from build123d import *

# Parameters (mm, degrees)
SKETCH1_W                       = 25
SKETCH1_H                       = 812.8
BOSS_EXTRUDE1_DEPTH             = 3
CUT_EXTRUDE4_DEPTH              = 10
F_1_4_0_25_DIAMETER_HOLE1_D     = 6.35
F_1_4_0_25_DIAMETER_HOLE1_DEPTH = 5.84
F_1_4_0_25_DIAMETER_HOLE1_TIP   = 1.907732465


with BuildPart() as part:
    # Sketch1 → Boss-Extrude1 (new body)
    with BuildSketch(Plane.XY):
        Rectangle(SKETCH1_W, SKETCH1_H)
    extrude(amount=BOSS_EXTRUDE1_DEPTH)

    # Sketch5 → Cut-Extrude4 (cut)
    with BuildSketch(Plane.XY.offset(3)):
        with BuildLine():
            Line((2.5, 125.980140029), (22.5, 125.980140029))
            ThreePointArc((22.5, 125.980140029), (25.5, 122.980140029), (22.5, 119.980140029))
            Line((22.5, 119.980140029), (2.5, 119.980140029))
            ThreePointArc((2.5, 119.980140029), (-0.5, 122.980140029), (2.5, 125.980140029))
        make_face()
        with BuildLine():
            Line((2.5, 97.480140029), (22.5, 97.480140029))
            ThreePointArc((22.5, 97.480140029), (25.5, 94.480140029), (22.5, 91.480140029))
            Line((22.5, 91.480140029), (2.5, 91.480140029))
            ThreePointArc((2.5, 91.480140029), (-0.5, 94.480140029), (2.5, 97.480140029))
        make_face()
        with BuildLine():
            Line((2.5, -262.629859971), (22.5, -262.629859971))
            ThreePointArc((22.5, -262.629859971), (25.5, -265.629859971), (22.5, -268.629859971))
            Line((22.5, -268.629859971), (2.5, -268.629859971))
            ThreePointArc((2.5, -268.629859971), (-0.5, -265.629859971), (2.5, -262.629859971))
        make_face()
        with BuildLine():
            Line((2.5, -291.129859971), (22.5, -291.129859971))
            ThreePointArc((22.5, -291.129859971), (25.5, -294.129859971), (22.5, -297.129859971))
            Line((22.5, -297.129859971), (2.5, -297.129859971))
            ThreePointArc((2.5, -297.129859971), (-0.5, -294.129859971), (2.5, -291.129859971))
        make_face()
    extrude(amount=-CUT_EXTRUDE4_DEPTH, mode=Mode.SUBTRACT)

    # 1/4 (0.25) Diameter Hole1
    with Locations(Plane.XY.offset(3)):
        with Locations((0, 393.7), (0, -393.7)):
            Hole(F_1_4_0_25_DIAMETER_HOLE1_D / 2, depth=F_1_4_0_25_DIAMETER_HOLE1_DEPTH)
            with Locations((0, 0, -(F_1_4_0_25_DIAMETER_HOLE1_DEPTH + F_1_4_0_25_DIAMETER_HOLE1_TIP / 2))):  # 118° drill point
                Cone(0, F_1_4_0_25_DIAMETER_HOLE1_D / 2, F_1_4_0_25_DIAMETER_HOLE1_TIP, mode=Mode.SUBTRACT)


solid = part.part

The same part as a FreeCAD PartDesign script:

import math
import FreeCAD as App
import Part
import Sketcher
from FreeCAD import Vector

doc = App.newDocument("Part")
body = doc.addObject("PartDesign::Body", "Body")

sketch1 = body.newObject("Sketcher::SketchObject", "Sketch")
sketch1.AttachmentSupport = (doc.getObject("XY_Plane"), [""])
sketch1.MapMode = "FlatFace"
sketch1.addGeometry(Part.LineSegment(Vector(-12, 406, 0), Vector(-12, -406, 0)), False)
sketch1.addGeometry(Part.LineSegment(Vector(-12, -406, 0), Vector(12, -406, 0)), False)
sketch1.addGeometry(Part.LineSegment(Vector(12, -406, 0), Vector(12, 406, 0)), False)
sketch1.addGeometry(Part.LineSegment(Vector(12, 406, 0), Vector(-12, 406, 0)), False)
sketch1.addConstraint(Sketcher.Constraint("Coincident", 0, 2, 1, 1))
sketch1.addConstraint(Sketcher.Constraint("Coincident", 1, 2, 2, 1))
sketch1.addConstraint(Sketcher.Constraint("Coincident", 2, 2, 3, 1))
sketch1.addConstraint(Sketcher.Constraint("Coincident", 3, 2, 0, 1))
sketch1.addConstraint(Sketcher.Constraint("Vertical", 0))
sketch1.addConstraint(Sketcher.Constraint("Horizontal", 1))
sketch1.addConstraint(Sketcher.Constraint("Vertical", 2))
sketch1.addConstraint(Sketcher.Constraint("Horizontal", 3))
sketch1.addConstraint(Sketcher.Constraint("Symmetric", 0, 2, 2, 2, -1, 1))
sketch1.addConstraint(Sketcher.Constraint("DistanceX", 1, 1, 1, 2, 25.0))
sketch1.addConstraint(Sketcher.Constraint("DistanceY", 0, 2, 0, 1, 812.8))
pad1 = body.newObject("PartDesign::Pad", "Pad")
pad1.Profile = sketch1
pad1.Length = 3

sketch2 = body.newObject("Sketcher::SketchObject", "Sketch001")
sketch2.AttachmentSupport = (doc.getObject("XY_Plane"), [""])
sketch2.MapMode = "FlatFace"
sketch2.AttachmentOffset = App.Placement(Vector(0, 0, 3), App.Rotation())
sketch2.addGeometry(Part.LineSegment(Vector(22.5, 126, 0), Vector(2.5, 126, 0)), False)
sketch2.addGeometry(Part.ArcOfCircle(Part.Circle(Vector(2.5, 123, 0), Vector(0, 0, 1), 3), math.radians(90), math.radians(270)), False)
sketch2.addGeometry(Part.LineSegment(Vector(2.5, 120, 0), Vector(22.5, 120, 0)), False)
sketch2.addGeometry(Part.ArcOfCircle(Part.Circle(Vector(22.5, 123, 0), Vector(0, 0, 1), 3), math.radians(-90), math.radians(90)), False)
sketch2.addGeometry(Part.LineSegment(Vector(22.5, 97.5, 0), Vector(2.5, 97.5, 0)), False)
sketch2.addGeometry(Part.ArcOfCircle(Part.Circle(Vector(2.5, 94.5, 0), Vector(0, 0, 1), 3), math.radians(90), math.radians(270)), False)
sketch2.addGeometry(Part.LineSegment(Vector(2.5, 91.5, 0), Vector(22.5, 91.5, 0)), False)
sketch2.addGeometry(Part.ArcOfCircle(Part.Circle(Vector(22.5, 94.5, 0), Vector(0, 0, 1), 3), math.radians(-90), math.radians(90)), False)
sketch2.addGeometry(Part.LineSegment(Vector(22.5, -262.6, 0), Vector(2.5, -262.6, 0)), False)
sketch2.addGeometry(Part.ArcOfCircle(Part.Circle(Vector(2.5, -265.6, 0), Vector(0, 0, 1), 3), math.radians(90), math.radians(270)), False)
sketch2.addGeometry(Part.LineSegment(Vector(2.5, -268.6, 0), Vector(22.5, -268.6, 0)), False)
sketch2.addGeometry(Part.ArcOfCircle(Part.Circle(Vector(22.5, -265.6, 0), Vector(0, 0, 1), 3), math.radians(-90), math.radians(90)), False)
sketch2.addGeometry(Part.LineSegment(Vector(22.5, -291.1, 0), Vector(2.5, -291.1, 0)), False)
sketch2.addGeometry(Part.ArcOfCircle(Part.Circle(Vector(2.5, -294.1, 0), Vector(0, 0, 1), 3), math.radians(90), math.radians(270)), False)
sketch2.addGeometry(Part.LineSegment(Vector(2.5, -297.1, 0), Vector(22.5, -297.1, 0)), False)
sketch2.addGeometry(Part.ArcOfCircle(Part.Circle(Vector(22.5, -294.1, 0), Vector(0, 0, 1), 3), math.radians(-90), math.radians(90)), False)
sketch2.addConstraint(Sketcher.Constraint("Tangent", 0, 2, 1, 1))
sketch2.addConstraint(Sketcher.Constraint("Tangent", 1, 2, 2, 1))
sketch2.addConstraint(Sketcher.Constraint("Tangent", 2, 2, 3, 1))
sketch2.addConstraint(Sketcher.Constraint("Tangent", 3, 2, 0, 1))
sketch2.addConstraint(Sketcher.Constraint("Tangent", 4, 2, 5, 1))
sketch2.addConstraint(Sketcher.Constraint("Tangent", 5, 2, 6, 1))
sketch2.addConstraint(Sketcher.Constraint("Tangent", 6, 2, 7, 1))
sketch2.addConstraint(Sketcher.Constraint("Tangent", 7, 2, 4, 1))
sketch2.addConstraint(Sketcher.Constraint("Tangent", 8, 2, 9, 1))
sketch2.addConstraint(Sketcher.Constraint("Tangent", 9, 2, 10, 1))
sketch2.addConstraint(Sketcher.Constraint("Tangent", 10, 2, 11, 1))
sketch2.addConstraint(Sketcher.Constraint("Tangent", 11, 2, 8, 1))
sketch2.addConstraint(Sketcher.Constraint("Tangent", 12, 2, 13, 1))
sketch2.addConstraint(Sketcher.Constraint("Tangent", 13, 2, 14, 1))
sketch2.addConstraint(Sketcher.Constraint("Tangent", 14, 2, 15, 1))
sketch2.addConstraint(Sketcher.Constraint("Tangent", 15, 2, 12, 1))
sketch2.addConstraint(Sketcher.Constraint("Horizontal", 0))
sketch2.addConstraint(Sketcher.Constraint("Horizontal", 2))
sketch2.addConstraint(Sketcher.Constraint("Horizontal", 4))
sketch2.addConstraint(Sketcher.Constraint("Horizontal", 6))
sketch2.addConstraint(Sketcher.Constraint("Horizontal", 8))
sketch2.addConstraint(Sketcher.Constraint("Horizontal", 10))
sketch2.addConstraint(Sketcher.Constraint("Horizontal", 12))
sketch2.addConstraint(Sketcher.Constraint("Horizontal", 14))
sketch2.addConstraint(Sketcher.Constraint("Equal", 3, 5))
sketch2.addConstraint(Sketcher.Constraint("Equal", 7, 9))
sketch2.addConstraint(Sketcher.Constraint("Equal", 11, 13))
sketch2.addConstraint(Sketcher.Constraint("Vertical", 1, 3, 5, 3))
sketch2.addConstraint(Sketcher.Constraint("Vertical", 3, 3, 7, 3))
sketch2.addConstraint(Sketcher.Constraint("Vertical", 5, 3, 9, 3))
sketch2.addConstraint(Sketcher.Constraint("Vertical", 7, 3, 11, 3))
sketch2.addConstraint(Sketcher.Constraint("Vertical", 9, 3, 13, 3))
sketch2.addConstraint(Sketcher.Constraint("Vertical", 11, 3, 15, 3))
sketch2.addConstraint(Sketcher.Constraint("Radius", 1, 3.0))
sketch2.addConstraint(Sketcher.Constraint("DistanceX", 0, 2, 0, 1, 20.0))
sketch2.addConstraint(Sketcher.Constraint("DistanceX", -1, 1, 1, 3, 2.5))
sketch2.addConstraint(Sketcher.Constraint("DistanceY", 5, 3, 1, 3, 28.5))
sketch2.addConstraint(Sketcher.Constraint("DistanceY", 13, 3, 9, 3, 28.5))
sketch2.addConstraint(Sketcher.Constraint("DistanceY", 9, 3, 5, 3, 360.11))
sketch2.addConstraint(Sketcher.Constraint("DistanceY", -1, 1, 1, 3, 122.98014))
pocket1 = body.newObject("PartDesign::Pocket", "Pocket")
pocket1.Profile = sketch2
pocket1.Length = 10

sketch3 = body.newObject("Sketcher::SketchObject", "Sketch002")
sketch3.AttachmentSupport = (doc.getObject("XY_Plane"), [""])
sketch3.MapMode = "FlatFace"
sketch3.AttachmentOffset = App.Placement(Vector(0, 0, 3), App.Rotation())
sketch3.addGeometry(Part.Circle(Vector(0, 393.7, 0), Vector(0, 0, 1), 3.2), False)
sketch3.addGeometry(Part.Circle(Vector(0, -393.7, 0), Vector(0, 0, 1), 3.2), False)
sketch3.addConstraint(Sketcher.Constraint("Equal", 0, 1))
sketch3.addConstraint(Sketcher.Constraint("Symmetric", 0, 3, 1, 3, -1, 1))
sketch3.addConstraint(Sketcher.Constraint("PointOnObject", 0, 3, -2))
sketch3.addConstraint(Sketcher.Constraint("Diameter", 0, 6.35))
sketch3.addConstraint(Sketcher.Constraint("DistanceY", -1, 1, 0, 3, 393.7))
doc.recompute()
hole = body.newObject("PartDesign::Hole", "Hole")
hole.Profile = sketch3
hole.ThreadType = "None"
hole.Diameter = 6.35
hole.DepthType = "Dimension"
hole.Depth = 5.84
hole.DrillPoint = "Angled"
hole.DrillPointAngle = 118

doc.recompute()
